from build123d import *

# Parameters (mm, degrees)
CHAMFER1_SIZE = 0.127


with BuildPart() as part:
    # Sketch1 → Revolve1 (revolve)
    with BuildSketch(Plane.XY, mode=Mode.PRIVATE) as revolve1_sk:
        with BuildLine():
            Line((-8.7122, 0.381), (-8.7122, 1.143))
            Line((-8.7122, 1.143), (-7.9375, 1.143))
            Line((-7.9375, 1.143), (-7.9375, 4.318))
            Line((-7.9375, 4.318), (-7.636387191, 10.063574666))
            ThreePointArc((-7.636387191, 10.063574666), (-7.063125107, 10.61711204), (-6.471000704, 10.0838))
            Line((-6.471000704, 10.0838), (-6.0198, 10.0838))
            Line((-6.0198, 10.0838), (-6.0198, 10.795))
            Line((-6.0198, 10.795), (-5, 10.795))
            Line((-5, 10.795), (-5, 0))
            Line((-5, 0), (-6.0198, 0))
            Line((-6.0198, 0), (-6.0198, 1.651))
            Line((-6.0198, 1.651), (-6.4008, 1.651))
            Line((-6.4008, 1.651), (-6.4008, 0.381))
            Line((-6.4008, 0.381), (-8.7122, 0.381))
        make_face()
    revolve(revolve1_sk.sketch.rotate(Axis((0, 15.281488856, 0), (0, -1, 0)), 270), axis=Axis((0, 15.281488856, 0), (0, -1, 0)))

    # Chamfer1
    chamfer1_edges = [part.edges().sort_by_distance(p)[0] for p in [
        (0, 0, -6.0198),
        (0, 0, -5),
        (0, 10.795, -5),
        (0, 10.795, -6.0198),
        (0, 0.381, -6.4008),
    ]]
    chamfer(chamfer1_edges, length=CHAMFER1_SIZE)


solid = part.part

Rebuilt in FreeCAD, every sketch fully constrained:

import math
import FreeCAD as App
import Part
import Sketcher

V = App.Vector
Q = App.Units.Quantity


def edges_at(feature, points):
    """Names of the edges that pass closest to the given points."""
    edges = feature.Shape.Edges
    near = lambda p: min(range(len(edges)), key=lambda i: edges[i].distToShape(Part.Vertex(*p))[0])
    return sorted({f"Edge{near(p) + 1}" for p in points})

doc = App.newDocument("Part")
body = doc.addObject("PartDesign::Body", "Body")

sketch1 = doc.addObject("Sketcher::SketchObject", "Sketch")
body.addObject(sketch1)
sketch1.AttachmentSupport = (doc.XY_Plane, [""])
sketch1.MapMode = "FlatFace"
sketch1.addGeometry([
    Part.LineSegment(V(-8.71, 1.14, 0), V(-8.71, 0.38, 0)),
    Part.LineSegment(V(-8.71, 0.38, 0), V(-6.4, 0.38, 0)),
    Part.LineSegment(V(-6.4, 0.38, 0), V(-6.4, 1.65, 0)),
    Part.LineSegment(V(-6.4, 1.65, 0), V(-6.02, 1.65, 0)),
    Part.LineSegment(V(-6.02, 1.65, 0), V(-6.02, 0, 0)),
    Part.LineSegment(V(-6.02, 0, 0), V(-5, 0, 0)),
    Part.LineSegment(V(-5, 0, 0), V(-5, 10.79, 0)),
    Part.LineSegment(V(-5, 10.79, 0), V(-6.02, 10.79, 0)),
    Part.LineSegment(V(-6.02, 10.79, 0), V(-6.02, 10.08, 0)),
    Part.LineSegment(V(-6.02, 10.08, 0), V(-6.47, 10.08, 0)),
    Part.ArcOfCircle(Part.Circle(V(-7.05, 10.03, 0), V(0, 0, 1), 0.58), math.radians(5), math.radians(177)),
    Part.LineSegment(V(-7.64, 10.06, 0), V(-7.94, 4.32, 0)),
    Part.LineSegment(V(-7.94, 4.32, 0), V(-7.94, 1.14, 0)),
    Part.LineSegment(V(-7.94, 1.14, 0), V(-8.71, 1.14, 0)),
], False)
sketch1.addConstraint([
    Sketcher.Constraint("Coincident", 0, 2, 1, 1),
    Sketcher.Constraint("Coincident", 1, 2, 2, 1),
    Sketcher.Constraint("Coincident", 2, 2, 3, 1),
    Sketcher.Constraint("Coincident", 3, 2, 4, 1),
    Sketcher.Constraint("Coincident", 4, 2, 5, 1),
    Sketcher.Constraint("Coincident", 5, 2, 6, 1),
    Sketcher.Constraint("Coincident", 6, 2, 7, 1),
    Sketcher.Constraint("Coincident", 7, 2, 8, 1),
    Sketcher.Constraint("Coincident", 8, 2, 9, 1),
    Sketcher.Constraint("Coincident", 9, 2, 10, 1),
    Sketcher.Constraint("Tangent", 10, 2, 11, 1),
    Sketcher.Constraint("Coincident", 11, 2, 12, 1),
    Sketcher.Constraint("Coincident", 12, 2, 13, 1),
    Sketcher.Constraint("Coincident", 13, 2, 0, 1),
    Sketcher.Constraint("Vertical", 0),
    Sketcher.Constraint("Horizontal", 1),
    Sketcher.Constraint("Vertical", 2),
    Sketcher.Constraint("Horizontal", 3),
    Sketcher.Constraint("Vertical", 4),
    Sketcher.Constraint("Horizontal", 5),
    Sketcher.Constraint("Vertical", 6),
    Sketcher.Constraint("Horizontal", 7),
    Sketcher.Constraint("Vertical", 8),
    Sketcher.Constraint("Horizontal", 9),
    Sketcher.Constraint("Vertical", 12),
    Sketcher.Constraint("Horizontal", 13),
    Sketcher.Constraint("PointOnObject", 4, 2, -1),
    Sketcher.Constraint("Vertical", 4, 2, 7, 2),
    Sketcher.Constraint("Angle", 11, Q("-93 deg")),
    Sketcher.Constraint("Radius", 10, Q("0.023 in")),
    Sketcher.Constraint("DistanceY", 0, 2, 0, 1, Q("0.03 in")),
    Sketcher.Constraint("DistanceY", 2, 1, 2, 2, Q("0.05 in")),
    Sketcher.Constraint("DistanceX", 1, 1, 1, 2, Q("0.091 in")),
    Sketcher.Constraint("DistanceX", 3, 1, 3, 2, Q("0.015 in")),
    Sketcher.Constraint("DistanceY", 4, 2, 4, 1, Q("0.065 in")),
    Sketcher.Constraint("DistanceY", 6, 1, 6, 2, Q("0.425 in")),
    Sketcher.Constraint("DistanceY", 8, 2, 8, 1, Q("0.028 in")),
    Sketcher.Constraint("DistanceY", 12, 2, 12, 1, Q("0.125 in")),
    Sketcher.Constraint("DistanceY", 0, 2, 10, 3, Q("0.38 in")),
    Sketcher.Constraint("DistanceX", 13, 2, 13, 1, Q("0.0305 in")),
    Sketcher.Constraint("DistanceX", 0, 2, -1, 1, Q("0.343 in")),
    Sketcher.Constraint("DistanceX", 5, 1, 5, 2, Q("1.0198 mm")),
])
revolution = doc.addObject("PartDesign::Revolution", "Revolution")
body.addObject(revolution)
revolution.Profile = sketch1
revolution.ReferenceAxis = (sketch1, ["V_Axis"])
revolution.Angle = 360
doc.recompute()

chamfer = doc.addObject("PartDesign::Chamfer", "Chamfer")
body.addObject(chamfer)
chamfer.Base = (revolution, edges_at(revolution, [
    (0, 0, -6.02),
    (0, 0, -5),
    (0, 10.795, -5),
    (0, 10.795, -6.02),
    (0, 0.381, -6.401),
]))
chamfer.Size = Q("0.005 in")

doc.recompute()
